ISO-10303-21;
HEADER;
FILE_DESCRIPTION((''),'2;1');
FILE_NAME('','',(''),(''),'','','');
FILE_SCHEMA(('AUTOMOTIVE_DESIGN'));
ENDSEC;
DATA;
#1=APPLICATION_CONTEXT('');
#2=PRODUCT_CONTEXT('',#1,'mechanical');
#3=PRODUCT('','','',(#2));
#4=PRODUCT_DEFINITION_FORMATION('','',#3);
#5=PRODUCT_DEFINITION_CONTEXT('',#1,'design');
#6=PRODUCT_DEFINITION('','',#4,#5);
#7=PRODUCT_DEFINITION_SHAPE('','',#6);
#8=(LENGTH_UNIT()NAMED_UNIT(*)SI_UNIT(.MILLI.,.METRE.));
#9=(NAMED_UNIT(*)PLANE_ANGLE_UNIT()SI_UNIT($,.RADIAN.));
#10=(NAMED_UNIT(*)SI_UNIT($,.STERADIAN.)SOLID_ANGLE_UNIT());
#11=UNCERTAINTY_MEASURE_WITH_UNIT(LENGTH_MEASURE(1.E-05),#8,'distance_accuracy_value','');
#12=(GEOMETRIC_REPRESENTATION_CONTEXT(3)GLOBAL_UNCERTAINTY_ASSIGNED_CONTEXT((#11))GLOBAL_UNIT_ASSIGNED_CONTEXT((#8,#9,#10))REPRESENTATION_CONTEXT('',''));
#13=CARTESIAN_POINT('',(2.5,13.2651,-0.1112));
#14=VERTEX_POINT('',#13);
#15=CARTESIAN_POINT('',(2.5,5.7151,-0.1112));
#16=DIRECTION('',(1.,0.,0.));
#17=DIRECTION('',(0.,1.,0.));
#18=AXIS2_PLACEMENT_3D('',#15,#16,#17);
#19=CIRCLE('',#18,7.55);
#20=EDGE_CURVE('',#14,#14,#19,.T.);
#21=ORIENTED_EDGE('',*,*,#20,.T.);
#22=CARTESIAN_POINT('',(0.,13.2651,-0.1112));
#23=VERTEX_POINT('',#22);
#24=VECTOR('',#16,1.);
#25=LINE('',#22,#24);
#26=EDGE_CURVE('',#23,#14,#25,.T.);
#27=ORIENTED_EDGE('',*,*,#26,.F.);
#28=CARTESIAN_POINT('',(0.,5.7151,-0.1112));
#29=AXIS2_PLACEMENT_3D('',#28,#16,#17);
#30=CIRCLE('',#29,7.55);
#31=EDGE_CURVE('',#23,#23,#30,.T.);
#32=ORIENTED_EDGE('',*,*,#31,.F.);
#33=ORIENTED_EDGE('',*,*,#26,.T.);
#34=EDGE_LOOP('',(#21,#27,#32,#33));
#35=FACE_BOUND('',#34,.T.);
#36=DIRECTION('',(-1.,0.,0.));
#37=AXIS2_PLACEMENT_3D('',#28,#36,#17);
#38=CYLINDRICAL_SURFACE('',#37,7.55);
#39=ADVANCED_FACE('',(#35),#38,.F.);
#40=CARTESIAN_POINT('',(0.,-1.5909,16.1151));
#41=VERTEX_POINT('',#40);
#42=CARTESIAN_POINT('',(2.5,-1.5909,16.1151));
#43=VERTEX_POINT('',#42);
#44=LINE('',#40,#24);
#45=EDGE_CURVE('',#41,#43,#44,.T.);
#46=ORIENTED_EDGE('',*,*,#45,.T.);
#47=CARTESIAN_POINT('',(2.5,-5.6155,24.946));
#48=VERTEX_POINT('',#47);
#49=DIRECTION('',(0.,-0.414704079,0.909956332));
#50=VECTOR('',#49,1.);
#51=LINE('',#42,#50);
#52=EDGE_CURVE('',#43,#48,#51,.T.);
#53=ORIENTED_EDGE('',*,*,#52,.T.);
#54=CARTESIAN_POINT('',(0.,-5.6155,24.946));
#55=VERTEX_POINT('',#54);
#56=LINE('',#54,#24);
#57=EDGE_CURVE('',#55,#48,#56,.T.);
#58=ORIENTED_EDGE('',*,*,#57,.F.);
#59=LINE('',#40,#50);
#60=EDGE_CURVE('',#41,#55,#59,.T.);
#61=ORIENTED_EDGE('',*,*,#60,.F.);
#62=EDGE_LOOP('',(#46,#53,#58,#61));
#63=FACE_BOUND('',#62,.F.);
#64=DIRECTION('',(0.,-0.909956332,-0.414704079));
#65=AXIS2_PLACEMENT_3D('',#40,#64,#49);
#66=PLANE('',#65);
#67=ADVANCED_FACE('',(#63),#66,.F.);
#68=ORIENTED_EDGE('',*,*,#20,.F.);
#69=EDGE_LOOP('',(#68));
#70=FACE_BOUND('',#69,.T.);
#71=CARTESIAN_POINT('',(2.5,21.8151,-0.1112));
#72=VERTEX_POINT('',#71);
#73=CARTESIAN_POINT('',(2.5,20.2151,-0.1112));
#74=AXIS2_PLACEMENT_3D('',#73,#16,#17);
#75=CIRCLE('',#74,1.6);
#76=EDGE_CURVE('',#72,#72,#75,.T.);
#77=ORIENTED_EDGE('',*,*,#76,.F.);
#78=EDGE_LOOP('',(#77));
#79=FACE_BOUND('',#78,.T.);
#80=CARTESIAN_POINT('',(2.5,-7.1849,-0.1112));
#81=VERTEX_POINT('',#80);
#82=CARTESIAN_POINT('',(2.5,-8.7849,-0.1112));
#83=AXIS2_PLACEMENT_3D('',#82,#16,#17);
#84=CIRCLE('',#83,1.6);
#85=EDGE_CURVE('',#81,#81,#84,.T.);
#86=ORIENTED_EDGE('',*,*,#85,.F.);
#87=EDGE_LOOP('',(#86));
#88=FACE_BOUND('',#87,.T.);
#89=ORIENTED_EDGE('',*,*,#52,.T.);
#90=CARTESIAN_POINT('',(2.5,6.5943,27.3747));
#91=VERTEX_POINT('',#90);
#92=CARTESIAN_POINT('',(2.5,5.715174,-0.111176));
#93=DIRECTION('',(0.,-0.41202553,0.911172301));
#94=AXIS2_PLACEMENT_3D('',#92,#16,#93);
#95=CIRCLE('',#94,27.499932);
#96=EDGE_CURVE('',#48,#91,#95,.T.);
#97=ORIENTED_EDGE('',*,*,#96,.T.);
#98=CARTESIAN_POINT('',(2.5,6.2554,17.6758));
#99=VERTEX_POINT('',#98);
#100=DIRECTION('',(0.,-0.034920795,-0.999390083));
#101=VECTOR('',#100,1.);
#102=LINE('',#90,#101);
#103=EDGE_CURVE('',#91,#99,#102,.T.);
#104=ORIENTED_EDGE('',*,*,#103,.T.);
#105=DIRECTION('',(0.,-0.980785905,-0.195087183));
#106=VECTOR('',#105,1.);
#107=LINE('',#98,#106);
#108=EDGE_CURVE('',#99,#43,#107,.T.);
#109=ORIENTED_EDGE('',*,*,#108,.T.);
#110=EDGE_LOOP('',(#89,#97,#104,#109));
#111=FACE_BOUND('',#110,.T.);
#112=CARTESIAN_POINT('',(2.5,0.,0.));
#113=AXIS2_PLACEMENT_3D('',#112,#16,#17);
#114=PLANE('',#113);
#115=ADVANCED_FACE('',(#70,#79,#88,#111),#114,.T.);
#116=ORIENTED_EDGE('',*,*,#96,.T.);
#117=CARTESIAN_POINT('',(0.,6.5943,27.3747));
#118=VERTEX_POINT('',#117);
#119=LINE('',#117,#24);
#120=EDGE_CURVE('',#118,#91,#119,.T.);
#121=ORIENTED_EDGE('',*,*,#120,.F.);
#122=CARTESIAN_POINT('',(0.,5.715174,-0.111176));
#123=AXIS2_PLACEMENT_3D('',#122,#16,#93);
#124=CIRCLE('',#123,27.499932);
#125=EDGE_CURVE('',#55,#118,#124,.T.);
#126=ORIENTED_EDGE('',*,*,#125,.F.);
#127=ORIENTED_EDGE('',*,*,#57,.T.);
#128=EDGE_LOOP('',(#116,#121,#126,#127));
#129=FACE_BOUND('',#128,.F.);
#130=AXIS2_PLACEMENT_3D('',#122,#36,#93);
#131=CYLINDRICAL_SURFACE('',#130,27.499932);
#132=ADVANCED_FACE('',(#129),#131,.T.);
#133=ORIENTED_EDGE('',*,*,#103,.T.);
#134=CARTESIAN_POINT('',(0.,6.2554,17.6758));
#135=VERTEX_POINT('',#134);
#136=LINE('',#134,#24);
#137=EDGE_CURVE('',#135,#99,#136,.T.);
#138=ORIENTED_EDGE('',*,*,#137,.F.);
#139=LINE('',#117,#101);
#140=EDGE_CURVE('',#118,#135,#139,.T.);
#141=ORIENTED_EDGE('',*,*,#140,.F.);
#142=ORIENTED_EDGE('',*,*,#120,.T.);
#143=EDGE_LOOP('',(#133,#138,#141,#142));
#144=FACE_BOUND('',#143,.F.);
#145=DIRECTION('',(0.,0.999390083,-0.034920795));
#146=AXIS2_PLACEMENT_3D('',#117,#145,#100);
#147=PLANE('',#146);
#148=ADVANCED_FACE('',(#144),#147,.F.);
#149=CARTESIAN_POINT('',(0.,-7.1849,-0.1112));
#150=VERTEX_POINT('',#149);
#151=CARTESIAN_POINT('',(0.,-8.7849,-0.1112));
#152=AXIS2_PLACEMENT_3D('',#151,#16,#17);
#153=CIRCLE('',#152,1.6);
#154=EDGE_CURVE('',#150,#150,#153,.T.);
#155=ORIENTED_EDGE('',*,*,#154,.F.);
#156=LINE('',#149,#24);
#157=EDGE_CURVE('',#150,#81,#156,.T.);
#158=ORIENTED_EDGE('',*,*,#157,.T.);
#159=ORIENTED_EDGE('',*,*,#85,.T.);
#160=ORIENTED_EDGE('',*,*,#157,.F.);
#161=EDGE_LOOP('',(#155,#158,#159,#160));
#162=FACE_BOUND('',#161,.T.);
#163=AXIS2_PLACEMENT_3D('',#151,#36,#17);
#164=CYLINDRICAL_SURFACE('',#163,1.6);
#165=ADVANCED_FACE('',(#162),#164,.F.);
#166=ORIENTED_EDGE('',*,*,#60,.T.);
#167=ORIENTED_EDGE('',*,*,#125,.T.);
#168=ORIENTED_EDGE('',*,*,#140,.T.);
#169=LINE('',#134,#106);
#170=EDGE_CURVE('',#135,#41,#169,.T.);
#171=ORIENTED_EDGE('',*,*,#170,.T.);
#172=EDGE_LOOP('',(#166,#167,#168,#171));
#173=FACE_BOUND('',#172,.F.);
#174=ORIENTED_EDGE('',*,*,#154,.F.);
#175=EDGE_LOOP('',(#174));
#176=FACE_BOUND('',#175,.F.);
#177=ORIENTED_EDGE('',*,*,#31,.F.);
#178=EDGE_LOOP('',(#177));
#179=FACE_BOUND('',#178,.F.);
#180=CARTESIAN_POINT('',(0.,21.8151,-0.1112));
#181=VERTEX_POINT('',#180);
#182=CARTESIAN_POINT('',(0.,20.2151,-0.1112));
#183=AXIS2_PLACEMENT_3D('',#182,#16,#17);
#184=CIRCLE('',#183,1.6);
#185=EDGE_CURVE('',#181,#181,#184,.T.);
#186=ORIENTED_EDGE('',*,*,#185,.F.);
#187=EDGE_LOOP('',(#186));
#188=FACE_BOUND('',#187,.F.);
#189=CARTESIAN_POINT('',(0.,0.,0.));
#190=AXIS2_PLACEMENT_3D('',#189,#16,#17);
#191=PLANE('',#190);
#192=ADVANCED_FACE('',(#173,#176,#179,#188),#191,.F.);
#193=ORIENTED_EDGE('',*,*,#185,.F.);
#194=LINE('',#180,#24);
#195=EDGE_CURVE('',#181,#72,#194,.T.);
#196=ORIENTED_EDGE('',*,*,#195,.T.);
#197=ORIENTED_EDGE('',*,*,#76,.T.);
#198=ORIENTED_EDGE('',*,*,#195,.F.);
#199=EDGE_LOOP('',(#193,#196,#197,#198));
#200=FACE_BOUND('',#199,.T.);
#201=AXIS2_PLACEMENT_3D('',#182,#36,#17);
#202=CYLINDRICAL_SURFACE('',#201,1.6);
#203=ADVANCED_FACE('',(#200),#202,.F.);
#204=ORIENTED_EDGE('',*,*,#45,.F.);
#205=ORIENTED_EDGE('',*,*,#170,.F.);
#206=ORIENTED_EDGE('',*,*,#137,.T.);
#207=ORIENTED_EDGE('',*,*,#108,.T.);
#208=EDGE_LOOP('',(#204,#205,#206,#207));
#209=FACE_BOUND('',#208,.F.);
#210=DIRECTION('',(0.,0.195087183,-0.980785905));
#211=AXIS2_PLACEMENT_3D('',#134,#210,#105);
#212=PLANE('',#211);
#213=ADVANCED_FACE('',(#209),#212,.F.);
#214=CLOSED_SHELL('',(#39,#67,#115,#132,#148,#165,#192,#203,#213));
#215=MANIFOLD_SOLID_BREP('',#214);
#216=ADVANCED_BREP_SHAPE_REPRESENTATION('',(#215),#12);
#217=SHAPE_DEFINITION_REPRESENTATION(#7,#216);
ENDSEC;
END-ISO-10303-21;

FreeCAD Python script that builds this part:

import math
import FreeCAD as App
import Part
import Sketcher
Q = App.Units.Quantity

doc = App.newDocument("Part")
body = doc.addObject("PartDesign::Body", "Body")

# Sketch on YZ plane
sketch1 = doc.addObject("Sketcher::SketchObject", "Sketch")
body.addObject(sketch1)
sketch1.AttachmentSupport = (doc.YZ_Plane, [""])
sketch1.MapMode = "FlatFace"
sketch1.addGeometry([
    Part.ArcOfCircle(Part.Circle(App.Vector(5.7151, -0.1112, 0), App.Vector(0, 0, 1), 27.499923), math.radians(114.331978), math.radians(448.167887)),  # 0
    Part.LineSegment(App.Vector(6.5943, 27.3747, 0), App.Vector(6.2554, 17.6758, 0)),  # 1
    Part.LineSegment(App.Vector(6.2554, 17.6758, 0), App.Vector(-1.5909, 16.1151, 0)),  # 2
    Part.LineSegment(App.Vector(-1.5909, 16.1151, 0), App.Vector(-5.6155, 24.946, 0)),  # 3
    Part.Circle(App.Vector(-8.7849, -0.1112, 0), App.Vector(0, 0, 1), 1.6),  # 4
    Part.Circle(App.Vector(5.7151, -0.1112, 0), App.Vector(0, 0, 1), 7.55),  # 5
    Part.Circle(App.Vector(20.2151, -0.1112, 0), App.Vector(0, 0, 1), 1.6),  # 6
], False)
sketch1.addConstraint([
    Sketcher.Constraint("Coincident", 0, 2, 1, 1),
    Sketcher.Constraint("Coincident", 1, 2, 2, 1),
    Sketcher.Constraint("Coincident", 2, 2, 3, 1),
    Sketcher.Constraint("Coincident", 3, 2, 0, 1),
    Sketcher.Constraint("Coincident", 5, 3, 0, 3),
    Sketcher.Constraint("Diameter", 4, Q("3.2 mm")),
    Sketcher.Constraint("Diameter", 5, Q("15.1 mm")),
    Sketcher.Constraint("Diameter", 6, Q("3.2 mm")),
    Sketcher.Constraint("Radius", 0, Q("27.5 mm")),
    Sketcher.Constraint("Distance", 2, Q("8 mm")),
    Sketcher.Constraint("DistanceX", 4, 3, 6, 3, Q("29 mm")),
    Sketcher.Constraint("DistanceX", 4, 3, 0, 3, Q("14.5 mm")),
    Sketcher.Constraint("DistanceX", -1, 1, 0, 3, Q("5.715 mm")),
    Sketcher.Constraint("DistanceX", 2, 2, -1, 1, Q("1.591 mm")),
    Sketcher.Constraint("DistanceY", -1, 1, 2, 2, Q("16.115 mm")),
    Sketcher.Constraint("DistanceY", -1, 1, 3, 2, Q("24.946 mm")),
    Sketcher.Constraint("DistanceX", 1, 2, 0, 2, Q("0.339 mm")),
    Sketcher.Constraint("DistanceY", 0, 3, 1, 2, Q("17.787 mm")),
    Sketcher.Constraint("DistanceY", 6, 3, 1, 2, Q("17.787 mm")),
    Sketcher.Constraint("DistanceY", 4, 3, 1, 2, Q("17.787 mm")),
    Sketcher.Constraint("DistanceX", 3, 2, 1, 2, Q("11.871 mm")),
])
pad1 = doc.addObject("PartDesign::Pad", "Pad")
body.addObject(pad1)
pad1.Profile = sketch1
pad1.Length = 2.5

doc.recompute()
